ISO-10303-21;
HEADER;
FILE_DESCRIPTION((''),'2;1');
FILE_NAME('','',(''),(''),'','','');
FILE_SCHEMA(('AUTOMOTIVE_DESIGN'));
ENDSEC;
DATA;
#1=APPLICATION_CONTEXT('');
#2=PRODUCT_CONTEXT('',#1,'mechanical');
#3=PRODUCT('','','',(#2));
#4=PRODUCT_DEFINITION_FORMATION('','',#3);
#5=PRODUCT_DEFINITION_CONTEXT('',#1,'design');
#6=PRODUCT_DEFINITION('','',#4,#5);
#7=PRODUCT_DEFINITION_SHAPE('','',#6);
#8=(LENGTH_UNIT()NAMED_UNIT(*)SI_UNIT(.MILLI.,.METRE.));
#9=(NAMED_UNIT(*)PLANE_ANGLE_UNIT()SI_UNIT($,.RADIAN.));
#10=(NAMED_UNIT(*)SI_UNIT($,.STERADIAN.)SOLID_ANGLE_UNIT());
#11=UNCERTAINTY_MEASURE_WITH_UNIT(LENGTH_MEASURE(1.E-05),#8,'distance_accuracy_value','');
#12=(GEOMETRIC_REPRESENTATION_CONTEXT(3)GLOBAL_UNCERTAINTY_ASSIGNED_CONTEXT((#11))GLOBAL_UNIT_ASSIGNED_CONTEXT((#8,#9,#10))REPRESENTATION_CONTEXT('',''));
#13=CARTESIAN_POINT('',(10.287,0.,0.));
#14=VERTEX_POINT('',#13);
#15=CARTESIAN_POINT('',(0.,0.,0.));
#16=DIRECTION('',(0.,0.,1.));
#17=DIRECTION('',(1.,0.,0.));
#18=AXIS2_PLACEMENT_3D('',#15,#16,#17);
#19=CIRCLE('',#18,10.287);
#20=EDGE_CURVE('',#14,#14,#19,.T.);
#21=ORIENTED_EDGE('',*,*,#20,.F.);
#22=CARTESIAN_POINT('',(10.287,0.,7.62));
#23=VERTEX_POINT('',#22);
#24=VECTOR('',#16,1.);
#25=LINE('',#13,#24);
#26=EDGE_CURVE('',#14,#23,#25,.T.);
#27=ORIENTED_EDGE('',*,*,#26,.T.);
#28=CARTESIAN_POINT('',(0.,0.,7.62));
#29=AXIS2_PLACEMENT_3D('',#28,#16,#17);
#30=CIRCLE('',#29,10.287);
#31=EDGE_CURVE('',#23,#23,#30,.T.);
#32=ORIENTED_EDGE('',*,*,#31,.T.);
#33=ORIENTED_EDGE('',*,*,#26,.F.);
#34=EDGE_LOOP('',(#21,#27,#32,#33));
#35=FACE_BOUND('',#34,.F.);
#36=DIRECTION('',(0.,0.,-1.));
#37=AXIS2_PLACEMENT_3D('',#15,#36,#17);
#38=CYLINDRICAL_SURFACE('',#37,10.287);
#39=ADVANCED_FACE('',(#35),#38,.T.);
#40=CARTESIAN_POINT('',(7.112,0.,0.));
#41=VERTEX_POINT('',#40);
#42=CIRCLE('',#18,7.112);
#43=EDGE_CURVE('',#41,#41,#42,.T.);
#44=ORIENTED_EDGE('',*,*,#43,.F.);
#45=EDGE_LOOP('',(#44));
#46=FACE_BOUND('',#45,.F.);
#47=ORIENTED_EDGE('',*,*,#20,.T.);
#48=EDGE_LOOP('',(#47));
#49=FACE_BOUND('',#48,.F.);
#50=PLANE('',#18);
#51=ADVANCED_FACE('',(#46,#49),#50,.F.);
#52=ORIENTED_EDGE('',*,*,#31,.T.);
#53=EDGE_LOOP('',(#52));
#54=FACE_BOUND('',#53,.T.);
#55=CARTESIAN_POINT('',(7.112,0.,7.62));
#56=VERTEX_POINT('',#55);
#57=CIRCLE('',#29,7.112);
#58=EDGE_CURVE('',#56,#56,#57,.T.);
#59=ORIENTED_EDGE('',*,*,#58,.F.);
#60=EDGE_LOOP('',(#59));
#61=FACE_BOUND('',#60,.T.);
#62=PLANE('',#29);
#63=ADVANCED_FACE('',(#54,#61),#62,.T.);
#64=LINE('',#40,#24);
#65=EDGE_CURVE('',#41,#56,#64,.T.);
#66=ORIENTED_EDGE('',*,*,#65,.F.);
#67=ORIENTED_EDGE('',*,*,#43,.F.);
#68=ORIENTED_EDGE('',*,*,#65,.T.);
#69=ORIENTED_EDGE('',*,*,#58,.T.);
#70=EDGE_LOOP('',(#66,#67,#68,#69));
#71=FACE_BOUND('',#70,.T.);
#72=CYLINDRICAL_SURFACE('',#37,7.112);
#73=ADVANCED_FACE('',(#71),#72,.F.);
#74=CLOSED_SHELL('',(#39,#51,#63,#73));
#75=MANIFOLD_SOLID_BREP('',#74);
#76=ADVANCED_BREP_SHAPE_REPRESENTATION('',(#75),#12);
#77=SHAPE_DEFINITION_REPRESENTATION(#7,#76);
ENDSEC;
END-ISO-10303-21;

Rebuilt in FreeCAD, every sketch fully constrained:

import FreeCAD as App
import Part
import Sketcher
Q = App.Units.Quantity

doc = App.newDocument("Part")
body = doc.addObject("PartDesign::Body", "Body")

# Sketch on XY plane
sketch1 = body.newObject("Sketcher::SketchObject", "Sketch")
sketch1.AttachmentSupport = (doc.getObject("XY_Plane"), [""])
sketch1.MapMode = "FlatFace"
sketch1.addGeometry([
    Part.Circle(App.Vector(0, 0, 0), App.Vector(0, 0, 1), 10),
    Part.Circle(App.Vector(0, 0, 0), App.Vector(0, 0, 1), 7),
], False)
sketch1.addConstraint([
    Sketcher.Constraint("Coincident", 0, 3, -1, 1),
    Sketcher.Constraint("Coincident", 1, 3, -1, 1),
    Sketcher.Constraint("Diameter", 1, Q("0.56 in")),
    Sketcher.Constraint("Diameter", 0, Q("0.81 in")),
])
pad1 = body.newObject("PartDesign::Pad", "Pad")
pad1.Profile = sketch1
pad1.Length = Q("0.3 in")

doc.recompute()
